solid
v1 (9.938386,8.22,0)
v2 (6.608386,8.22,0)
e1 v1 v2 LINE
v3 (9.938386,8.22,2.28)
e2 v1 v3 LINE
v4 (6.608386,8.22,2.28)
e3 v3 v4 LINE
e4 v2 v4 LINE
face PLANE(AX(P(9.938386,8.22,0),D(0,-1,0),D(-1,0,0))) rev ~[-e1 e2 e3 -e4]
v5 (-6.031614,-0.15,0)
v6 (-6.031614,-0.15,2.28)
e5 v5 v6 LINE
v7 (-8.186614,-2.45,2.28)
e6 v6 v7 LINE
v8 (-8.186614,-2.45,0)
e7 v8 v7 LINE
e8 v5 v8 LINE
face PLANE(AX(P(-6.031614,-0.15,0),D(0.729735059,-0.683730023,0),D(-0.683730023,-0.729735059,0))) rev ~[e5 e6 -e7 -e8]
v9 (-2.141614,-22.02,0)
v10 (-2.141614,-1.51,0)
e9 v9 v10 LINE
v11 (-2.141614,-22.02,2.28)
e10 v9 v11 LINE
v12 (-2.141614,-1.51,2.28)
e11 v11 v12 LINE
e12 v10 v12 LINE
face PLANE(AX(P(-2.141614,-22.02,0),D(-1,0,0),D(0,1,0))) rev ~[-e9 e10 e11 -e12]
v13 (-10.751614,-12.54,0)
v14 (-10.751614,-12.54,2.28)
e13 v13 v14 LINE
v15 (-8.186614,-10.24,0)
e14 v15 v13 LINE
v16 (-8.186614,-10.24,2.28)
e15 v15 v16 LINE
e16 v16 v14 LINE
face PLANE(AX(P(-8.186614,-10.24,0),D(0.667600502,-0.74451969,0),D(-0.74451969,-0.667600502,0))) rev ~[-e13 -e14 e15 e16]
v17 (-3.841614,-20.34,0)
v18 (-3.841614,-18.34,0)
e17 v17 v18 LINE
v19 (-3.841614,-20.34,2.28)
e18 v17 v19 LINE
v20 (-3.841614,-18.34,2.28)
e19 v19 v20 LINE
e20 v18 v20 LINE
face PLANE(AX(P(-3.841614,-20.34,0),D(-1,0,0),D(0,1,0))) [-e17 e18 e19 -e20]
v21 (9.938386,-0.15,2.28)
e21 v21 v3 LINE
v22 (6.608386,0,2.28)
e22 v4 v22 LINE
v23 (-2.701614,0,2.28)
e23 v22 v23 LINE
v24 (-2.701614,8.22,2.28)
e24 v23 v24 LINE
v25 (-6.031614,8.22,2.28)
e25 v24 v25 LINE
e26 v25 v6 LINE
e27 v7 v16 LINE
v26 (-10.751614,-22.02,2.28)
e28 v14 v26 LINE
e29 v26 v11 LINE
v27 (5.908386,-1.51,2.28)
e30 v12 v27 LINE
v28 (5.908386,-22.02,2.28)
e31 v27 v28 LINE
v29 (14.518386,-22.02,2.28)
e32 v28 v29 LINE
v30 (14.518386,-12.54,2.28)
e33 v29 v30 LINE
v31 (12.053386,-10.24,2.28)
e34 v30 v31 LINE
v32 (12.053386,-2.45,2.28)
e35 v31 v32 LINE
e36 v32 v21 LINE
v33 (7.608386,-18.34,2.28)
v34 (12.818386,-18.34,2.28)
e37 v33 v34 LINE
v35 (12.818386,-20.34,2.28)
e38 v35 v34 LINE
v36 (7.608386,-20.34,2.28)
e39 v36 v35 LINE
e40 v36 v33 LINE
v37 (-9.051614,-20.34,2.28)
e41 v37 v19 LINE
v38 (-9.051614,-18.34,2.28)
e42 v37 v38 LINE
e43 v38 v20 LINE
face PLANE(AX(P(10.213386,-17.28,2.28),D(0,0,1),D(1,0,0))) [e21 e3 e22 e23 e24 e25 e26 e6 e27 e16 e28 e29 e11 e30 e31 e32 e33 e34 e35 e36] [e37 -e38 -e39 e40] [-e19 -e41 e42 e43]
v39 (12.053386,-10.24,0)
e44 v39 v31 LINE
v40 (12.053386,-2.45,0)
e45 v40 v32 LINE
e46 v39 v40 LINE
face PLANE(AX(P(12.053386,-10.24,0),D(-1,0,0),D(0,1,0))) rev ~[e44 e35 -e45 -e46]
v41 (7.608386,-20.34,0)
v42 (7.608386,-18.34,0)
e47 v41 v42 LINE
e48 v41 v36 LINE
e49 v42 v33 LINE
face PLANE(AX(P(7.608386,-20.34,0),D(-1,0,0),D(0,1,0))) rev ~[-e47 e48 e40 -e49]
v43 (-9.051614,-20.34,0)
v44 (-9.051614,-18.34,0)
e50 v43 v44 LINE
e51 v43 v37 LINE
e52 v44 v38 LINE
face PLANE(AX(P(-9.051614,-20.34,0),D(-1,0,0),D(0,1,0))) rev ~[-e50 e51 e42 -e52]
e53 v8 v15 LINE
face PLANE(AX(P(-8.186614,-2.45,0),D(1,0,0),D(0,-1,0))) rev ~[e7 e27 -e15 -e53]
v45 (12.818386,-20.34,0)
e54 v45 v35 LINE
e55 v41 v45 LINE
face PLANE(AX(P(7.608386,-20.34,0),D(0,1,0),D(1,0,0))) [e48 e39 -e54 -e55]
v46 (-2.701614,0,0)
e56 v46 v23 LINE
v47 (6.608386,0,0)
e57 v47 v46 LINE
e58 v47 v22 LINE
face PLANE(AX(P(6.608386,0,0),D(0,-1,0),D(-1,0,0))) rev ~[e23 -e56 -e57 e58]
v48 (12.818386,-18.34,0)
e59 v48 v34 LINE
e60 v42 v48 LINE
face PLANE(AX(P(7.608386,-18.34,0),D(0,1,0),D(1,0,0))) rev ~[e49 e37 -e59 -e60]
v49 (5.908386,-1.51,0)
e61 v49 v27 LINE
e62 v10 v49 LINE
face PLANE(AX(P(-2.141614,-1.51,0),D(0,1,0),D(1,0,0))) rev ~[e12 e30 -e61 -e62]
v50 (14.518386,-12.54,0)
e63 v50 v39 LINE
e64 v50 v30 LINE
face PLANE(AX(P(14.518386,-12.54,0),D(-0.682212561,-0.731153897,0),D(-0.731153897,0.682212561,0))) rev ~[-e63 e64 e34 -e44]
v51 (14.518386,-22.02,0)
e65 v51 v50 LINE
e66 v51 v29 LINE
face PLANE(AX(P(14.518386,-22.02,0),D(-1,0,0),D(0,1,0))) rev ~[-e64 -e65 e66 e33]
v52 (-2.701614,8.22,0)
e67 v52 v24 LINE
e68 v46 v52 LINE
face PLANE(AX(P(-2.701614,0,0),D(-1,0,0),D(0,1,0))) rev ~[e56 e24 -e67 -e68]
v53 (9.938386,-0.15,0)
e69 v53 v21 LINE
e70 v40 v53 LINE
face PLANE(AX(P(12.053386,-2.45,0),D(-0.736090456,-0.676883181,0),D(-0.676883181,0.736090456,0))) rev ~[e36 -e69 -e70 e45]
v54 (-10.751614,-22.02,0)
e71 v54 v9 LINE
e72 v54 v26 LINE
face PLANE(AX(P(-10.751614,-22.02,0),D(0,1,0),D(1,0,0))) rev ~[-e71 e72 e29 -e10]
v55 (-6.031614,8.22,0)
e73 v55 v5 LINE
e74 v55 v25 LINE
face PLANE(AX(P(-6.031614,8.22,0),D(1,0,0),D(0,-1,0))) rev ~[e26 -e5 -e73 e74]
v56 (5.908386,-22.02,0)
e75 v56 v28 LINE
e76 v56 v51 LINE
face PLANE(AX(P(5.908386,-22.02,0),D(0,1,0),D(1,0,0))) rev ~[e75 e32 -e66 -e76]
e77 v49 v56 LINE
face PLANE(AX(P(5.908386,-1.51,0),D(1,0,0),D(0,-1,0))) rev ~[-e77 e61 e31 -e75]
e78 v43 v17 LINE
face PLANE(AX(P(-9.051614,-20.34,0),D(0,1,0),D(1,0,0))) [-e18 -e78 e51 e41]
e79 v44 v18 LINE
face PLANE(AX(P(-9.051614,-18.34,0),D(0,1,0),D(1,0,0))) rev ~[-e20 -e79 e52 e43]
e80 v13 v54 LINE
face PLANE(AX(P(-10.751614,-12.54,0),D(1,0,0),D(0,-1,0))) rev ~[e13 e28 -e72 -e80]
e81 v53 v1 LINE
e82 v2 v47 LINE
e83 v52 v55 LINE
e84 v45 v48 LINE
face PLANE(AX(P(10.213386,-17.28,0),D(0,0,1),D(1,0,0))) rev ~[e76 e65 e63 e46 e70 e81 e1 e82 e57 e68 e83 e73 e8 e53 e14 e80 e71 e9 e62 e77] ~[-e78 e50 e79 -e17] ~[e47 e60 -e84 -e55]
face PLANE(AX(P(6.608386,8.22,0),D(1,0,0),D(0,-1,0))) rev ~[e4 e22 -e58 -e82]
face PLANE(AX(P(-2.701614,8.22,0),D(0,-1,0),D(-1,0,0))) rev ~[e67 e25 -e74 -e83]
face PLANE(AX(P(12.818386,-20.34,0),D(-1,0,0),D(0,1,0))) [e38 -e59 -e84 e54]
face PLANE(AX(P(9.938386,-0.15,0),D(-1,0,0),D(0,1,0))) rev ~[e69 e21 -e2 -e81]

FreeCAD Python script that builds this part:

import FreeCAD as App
import Part
import Sketcher
from FreeCAD import Vector


def add_polygon(sketch, points):
    """Adds a closed chain of lines whose ends are joined by coincident constraints."""
    first, n = sketch.GeometryCount, len(points)
    for a, b in zip(points, points[1:] + points[:1]):
        sketch.addGeometry(Part.LineSegment(App.Vector(*a, 0), App.Vector(*b, 0)), False)
    for i in range(n):
        sketch.addConstraint(Sketcher.Constraint("Coincident", first + i, 2, first + (i + 1) % n, 1))

doc = App.newDocument("Part")
body = doc.addObject("PartDesign::Body", "Body")

sketch1 = body.newObject("Sketcher::SketchObject", "Sketch")
sketch1.AttachmentSupport = (doc.getObject("XY_Plane"), [""])
sketch1.MapMode = "FlatFace"
add_polygon(sketch1, [(5.9, -22), (14.5, -22), (14.5, -12.5), (12.1, -10.2), (12.1, -2.5), (9.9, -0.1), (9.9, 8.2), (6.6, 8.2), (6.6, 0), (-2.7, 0), (-2.7, 8.2), (-6, 8.2), (-6, -0.1), (-8.2, -2.5), (-8.2, -10.2), (-10.8, -12.5), (-10.8, -22), (-2.1, -22), (-2.1, -1.5), (5.9, -1.5)])
add_polygon(sketch1, [(12.8, -20.3), (7.6, -20.3), (7.6, -18.3), (12.8, -18.3)])
add_polygon(sketch1, [(-3.8, -18.3), (-3.8, -20.3), (-9.1, -20.3), (-9.1, -18.3)])
sketch1.addConstraint([
    Sketcher.Constraint("Horizontal", 0),
    Sketcher.Constraint("Vertical", 1),
    Sketcher.Constraint("Vertical", 3),
    Sketcher.Constraint("Vertical", 5),
    Sketcher.Constraint("Horizontal", 6),
    Sketcher.Constraint("Vertical", 7),
    Sketcher.Constraint("Horizontal", 8),
    Sketcher.Constraint("Vertical", 9),
    Sketcher.Constraint("Horizontal", 10),
    Sketcher.Constraint("Vertical", 11),
    Sketcher.Constraint("Vertical", 13),
    Sketcher.Constraint("Vertical", 15),
    Sketcher.Constraint("Horizontal", 16),
    Sketcher.Constraint("Vertical", 17),
    Sketcher.Constraint("Horizontal", 18),
    Sketcher.Constraint("Vertical", 19),
    Sketcher.Constraint("Horizontal", 20),
    Sketcher.Constraint("Vertical", 21),
    Sketcher.Constraint("Horizontal", 22),
    Sketcher.Constraint("Vertical", 23),
    Sketcher.Constraint("Vertical", 24),
    Sketcher.Constraint("Horizontal", 25),
    Sketcher.Constraint("Vertical", 26),
    Sketcher.Constraint("Horizontal", 27),
    Sketcher.Constraint("PointOnObject", 7, 2, -1),
    Sketcher.Constraint("Horizontal", 6, 2, 9, 2),
    Sketcher.Constraint("Horizontal", 4, 2, 11, 2),
    Sketcher.Constraint("Horizontal", 3, 2, 12, 2),
    Sketcher.Constraint("Horizontal", 2, 2, 13, 2),
    Sketcher.Constraint("Horizontal", 1, 2, 14, 2),
    Sketcher.Constraint("Horizontal", 0, 2, 15, 2),
    Sketcher.Constraint("Horizontal", 23, 2, 24, 2),
    Sketcher.Constraint("Horizontal", 22, 2, 26, 2),
    Sketcher.Constraint("Equal", 6, 10),
    Sketcher.Constraint("Equal", 0, 16),
    Sketcher.Constraint("Equal", 22, 25),
    Sketcher.Constraint("DistanceY", 21, 1, 21, 2, 2.0),
    Sketcher.Constraint("DistanceX", 0, 1, 0, 2, 8.61),
    Sketcher.Constraint("DistanceX", 6, 2, 6, 1, 3.33),
    Sketcher.Constraint("DistanceX", 8, 2, 8, 1, 9.31),
    Sketcher.Constraint("DistanceX", 18, 1, 18, 2, 8.05),
    Sketcher.Constraint("DistanceX", 20, 2, 20, 1, 5.21),
    Sketcher.Constraint("DistanceY", 1, 1, 1, 2, 9.48),
    Sketcher.Constraint("DistanceY", 3, 1, 3, 2, 7.79),
    Sketcher.Constraint("DistanceY", 5, 1, 5, 2, 8.37),
    Sketcher.Constraint("DistanceY", 7, 2, 7, 1, 8.22),
    Sketcher.Constraint("DistanceY", 17, 1, 17, 2, 20.51),
    Sketcher.Constraint("DistanceY", 1, 2, 2, 2, 2.3),
    Sketcher.Constraint("DistanceY", 3, 2, 4, 2, 2.3),
    Sketcher.Constraint("DistanceX", 18, 2, 7, 2, 0.7),
    Sketcher.Constraint("DistanceX", 19, 2, 20, 2, 1.7),
    Sketcher.Constraint("DistanceY", 20, 2, 1, 2, 7.8),
    Sketcher.Constraint("DistanceX", 24, 2, 16, 2, 1.7),
    Sketcher.Constraint("DistanceX", 2, 2, 1, 2, 2.465),
    Sketcher.Constraint("DistanceX", 12, 2, 11, 2, 2.155),
    Sketcher.Constraint("DistanceX", -1, 1, 0, 2, 14.518386),
])
pad1 = body.newObject("PartDesign::Pad", "Pad")
pad1.Profile = sketch1
pad1.Length = 2.28

doc.recompute()
